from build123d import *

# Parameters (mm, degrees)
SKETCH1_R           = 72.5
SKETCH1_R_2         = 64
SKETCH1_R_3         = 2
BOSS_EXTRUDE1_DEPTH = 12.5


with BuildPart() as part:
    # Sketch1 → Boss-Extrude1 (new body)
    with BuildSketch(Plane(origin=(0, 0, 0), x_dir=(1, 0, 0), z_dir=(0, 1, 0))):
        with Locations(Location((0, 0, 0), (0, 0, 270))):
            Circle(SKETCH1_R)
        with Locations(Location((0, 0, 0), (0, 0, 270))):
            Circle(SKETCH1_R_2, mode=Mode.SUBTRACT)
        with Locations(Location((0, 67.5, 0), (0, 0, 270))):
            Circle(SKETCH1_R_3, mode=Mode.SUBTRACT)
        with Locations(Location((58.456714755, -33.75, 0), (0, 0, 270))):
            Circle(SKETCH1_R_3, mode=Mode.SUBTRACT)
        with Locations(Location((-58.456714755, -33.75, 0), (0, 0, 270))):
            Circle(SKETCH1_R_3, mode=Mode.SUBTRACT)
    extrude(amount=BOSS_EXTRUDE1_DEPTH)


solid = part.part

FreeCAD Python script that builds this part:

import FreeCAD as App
import Part
import Sketcher
from FreeCAD import Vector
Q = App.Units.Quantity

doc = App.newDocument("Part")
body = doc.addObject("PartDesign::Body", "Body")

# Sketch on XZ plane
sketch1 = doc.addObject("Sketcher::SketchObject", "Sketch")
body.addObject(sketch1)
sketch1.AttachmentSupport = (doc.XZ_Plane, [""])
sketch1.MapMode = "FlatFace"
sketch1.addGeometry([
    Part.Circle(Vector(0, 0, 0), Vector(0, 0, 1), 72.5),  # 0
    Part.Circle(Vector(0, -67.5, 0), Vector(0, 0, 1), 2),  # 1
    Part.Circle(Vector(-58.5, 33.8, 0), Vector(0, 0, 1), 2),  # 2
    Part.Circle(Vector(0, 0, 0), Vector(0, 0, 1), 64),  # 3
    Part.Circle(Vector(58.5, 33.8, 0), Vector(0, 0, 1), 2),  # 4
], False)
sketch1.addConstraint([
    Sketcher.Constraint("Coincident", 0, 3, -1, 1),
    Sketcher.Constraint("Coincident", 3, 3, -1, 1),
    Sketcher.Constraint("Equal", 1, 2),
    Sketcher.Constraint("Equal", 2, 4),
    Sketcher.Constraint("Symmetric", 2, 3, 4, 3, -2),
    Sketcher.Constraint("PointOnObject", 1, 3, -2),
    Sketcher.Constraint("Diameter", 0, Q("145 mm")),
    Sketcher.Constraint("Diameter", 1, Q("4 mm")),
    Sketcher.Constraint("Diameter", 3, Q("128 mm")),
    Sketcher.Constraint("DistanceY", 1, 3, -1, 1, Q("67.5 mm")),
    Sketcher.Constraint("DistanceY", -1, 1, 2, 3, Q("33.75 mm")),
    Sketcher.Constraint("DistanceX", 2, 3, 4, 3, Q("116.91343 mm")),
])
pad1 = doc.addObject("PartDesign::Pad", "Pad")
body.addObject(pad1)
pad1.Profile = sketch1
pad1.Length = 12.5
pad1.Reversed = True

doc.recompute()
